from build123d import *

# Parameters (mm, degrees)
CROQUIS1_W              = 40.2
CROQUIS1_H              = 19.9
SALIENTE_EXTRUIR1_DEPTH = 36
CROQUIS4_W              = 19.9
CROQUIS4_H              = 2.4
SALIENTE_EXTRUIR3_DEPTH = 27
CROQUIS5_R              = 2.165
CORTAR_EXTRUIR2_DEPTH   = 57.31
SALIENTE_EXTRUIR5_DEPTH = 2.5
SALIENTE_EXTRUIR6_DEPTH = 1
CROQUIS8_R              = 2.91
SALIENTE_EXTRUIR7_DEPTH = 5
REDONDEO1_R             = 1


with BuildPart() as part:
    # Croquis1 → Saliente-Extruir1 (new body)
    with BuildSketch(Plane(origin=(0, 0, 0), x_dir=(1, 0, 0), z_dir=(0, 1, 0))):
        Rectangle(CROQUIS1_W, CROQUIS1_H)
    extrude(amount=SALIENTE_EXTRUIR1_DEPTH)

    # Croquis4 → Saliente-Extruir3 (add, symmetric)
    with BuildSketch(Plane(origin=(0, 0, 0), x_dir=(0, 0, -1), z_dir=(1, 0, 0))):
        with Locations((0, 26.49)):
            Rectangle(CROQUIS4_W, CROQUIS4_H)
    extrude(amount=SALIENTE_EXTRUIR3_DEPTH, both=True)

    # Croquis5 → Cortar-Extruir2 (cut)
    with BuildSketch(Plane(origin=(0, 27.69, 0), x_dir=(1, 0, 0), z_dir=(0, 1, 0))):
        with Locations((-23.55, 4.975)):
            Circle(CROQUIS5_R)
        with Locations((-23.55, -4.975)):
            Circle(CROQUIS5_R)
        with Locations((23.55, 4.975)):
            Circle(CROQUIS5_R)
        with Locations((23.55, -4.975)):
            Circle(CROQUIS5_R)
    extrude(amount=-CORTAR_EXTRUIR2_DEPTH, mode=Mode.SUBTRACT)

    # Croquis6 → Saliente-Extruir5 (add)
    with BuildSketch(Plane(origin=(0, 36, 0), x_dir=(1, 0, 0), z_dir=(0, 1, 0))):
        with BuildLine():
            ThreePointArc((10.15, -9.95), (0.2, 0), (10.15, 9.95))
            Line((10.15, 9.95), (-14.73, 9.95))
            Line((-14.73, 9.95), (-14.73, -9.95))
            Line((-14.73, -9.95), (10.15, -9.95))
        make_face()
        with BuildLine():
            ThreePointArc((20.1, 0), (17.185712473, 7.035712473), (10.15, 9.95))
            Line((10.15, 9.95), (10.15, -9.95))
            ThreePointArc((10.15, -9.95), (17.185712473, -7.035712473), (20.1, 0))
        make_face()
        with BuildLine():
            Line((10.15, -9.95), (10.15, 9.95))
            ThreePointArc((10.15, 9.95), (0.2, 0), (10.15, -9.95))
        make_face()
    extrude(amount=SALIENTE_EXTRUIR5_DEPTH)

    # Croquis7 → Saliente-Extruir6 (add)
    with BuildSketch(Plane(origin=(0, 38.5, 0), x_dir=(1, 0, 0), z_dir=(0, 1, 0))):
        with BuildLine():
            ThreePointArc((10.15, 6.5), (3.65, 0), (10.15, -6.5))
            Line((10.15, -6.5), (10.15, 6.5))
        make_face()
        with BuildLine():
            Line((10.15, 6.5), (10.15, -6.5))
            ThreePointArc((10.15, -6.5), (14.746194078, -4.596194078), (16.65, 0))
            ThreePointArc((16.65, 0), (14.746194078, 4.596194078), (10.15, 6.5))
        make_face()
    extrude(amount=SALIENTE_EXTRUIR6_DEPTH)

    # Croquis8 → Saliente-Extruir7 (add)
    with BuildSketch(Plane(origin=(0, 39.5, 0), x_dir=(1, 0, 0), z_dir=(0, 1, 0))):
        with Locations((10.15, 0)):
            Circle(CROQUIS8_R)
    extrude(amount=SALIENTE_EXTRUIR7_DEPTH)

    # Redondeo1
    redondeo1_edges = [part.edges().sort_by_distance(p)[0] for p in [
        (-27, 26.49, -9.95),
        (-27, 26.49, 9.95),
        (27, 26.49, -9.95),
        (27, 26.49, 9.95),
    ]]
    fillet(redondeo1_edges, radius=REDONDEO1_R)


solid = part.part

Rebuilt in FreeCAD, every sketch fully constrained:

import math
import FreeCAD as App
import Part
import Sketcher
Q = App.Units.Quantity


def edges_at(feature, points):
    """Names of the edges that pass closest to the given points."""
    edges = feature.Shape.Edges
    near = lambda p: min(range(len(edges)), key=lambda i: edges[i].distToShape(Part.Vertex(*p))[0])
    return sorted({f"Edge{near(p) + 1}" for p in points})

doc = App.newDocument("Part")
params = doc.addObject("Spreadsheet::Sheet", "Params")
for row, (alias, value) in enumerate([
    ("sketch1_width", "40.2 mm"),
    ("sketch1_height", "19.9 mm"),
    ("pad1_length", "36 mm"),
    ("sketch2_width", "2.4 mm"),
    ("sketch2_height", "19.9 mm"),
    ("pad2_length", "54 mm"),
    ("sketch3_diameter", "4.33 mm"),
    ("pocket1_length", "57.31 mm"),
    ("sketch4_radius", "9.95 mm"),
    ("sketch4_width", "24.88 mm"),
    ("pad3_length", "2.5 mm"),
    ("sketch5_radius", "6.5 mm"),
    ("pad4_length", "1 mm"),
    ("sketch6_diameter", "5.82 mm"),
    ("pad5_length", "5 mm"),
    ("fillet_radius", "1 mm"),
], start=1):
    params.set(f"A{row}", alias)
    params.set(f"B{row}", "=" + value)
    params.setAlias(f"B{row}", alias)

body = doc.addObject("PartDesign::Body", "Body")

sketch1 = body.newObject("Sketcher::SketchObject", "Sketch")
sketch1.AttachmentSupport = (doc.getObject("XZ_Plane"), [""])
sketch1.MapMode = "FlatFace"
sketch1.addGeometry(Part.LineSegment(App.Vector(-20.1, -9.95, 0), App.Vector(-20.1, 9.95, 0)), False)
sketch1.addGeometry(Part.LineSegment(App.Vector(-20.1, 9.95, 0), App.Vector(20.1, 9.95, 0)), False)
sketch1.addGeometry(Part.LineSegment(App.Vector(20.1, 9.95, 0), App.Vector(20.1, -9.95, 0)), False)
sketch1.addGeometry(Part.LineSegment(App.Vector(20.1, -9.95, 0), App.Vector(-20.1, -9.95, 0)), False)
sketch1.addConstraint(Sketcher.Constraint("Coincident", 0, 2, 1, 1))
sketch1.addConstraint(Sketcher.Constraint("Coincident", 1, 2, 2, 1))
sketch1.addConstraint(Sketcher.Constraint("Coincident", 2, 2, 3, 1))
sketch1.addConstraint(Sketcher.Constraint("Coincident", 3, 2, 0, 1))
sketch1.addConstraint(Sketcher.Constraint("Vertical", 0))
sketch1.addConstraint(Sketcher.Constraint("Horizontal", 1))
sketch1.addConstraint(Sketcher.Constraint("Vertical", 2))
sketch1.addConstraint(Sketcher.Constraint("Horizontal", 3))
sketch1.addConstraint(Sketcher.Constraint("Symmetric", 0, 2, 2, 2, -1, 1))
sketch1.addConstraint(Sketcher.Constraint("DistanceX", 1, 1, 1, 2, Q("40.2 mm")))
sketch1.addConstraint(Sketcher.Constraint("DistanceY", 0, 1, 0, 2, Q("19.9 mm")))
sketch1.setExpression("Constraints[9]", "Params.sketch1_width")
sketch1.setExpression("Constraints[10]", "Params.sketch1_height")
pad1 = body.newObject("PartDesign::Pad", "Pad")
pad1.Profile = sketch1
pad1.setExpression("Length", "Params.pad1_length")
pad1.Reversed = True

sketch2 = body.newObject("Sketcher::SketchObject", "Sketch001")
sketch2.AttachmentSupport = (doc.getObject("YZ_Plane"), [""])
sketch2.MapMode = "FlatFace"
sketch2.addGeometry(Part.LineSegment(App.Vector(27.69, 9.95, 0), App.Vector(25.29, 9.95, 0)), False)
sketch2.addGeometry(Part.LineSegment(App.Vector(25.29, 9.95, 0), App.Vector(25.29, -9.95, 0)), False)
sketch2.addGeometry(Part.LineSegment(App.Vector(25.29, -9.95, 0), App.Vector(27.69, -9.95, 0)), False)
sketch2.addGeometry(Part.LineSegment(App.Vector(27.69, -9.95, 0), App.Vector(27.69, 9.95, 0)), False)
sketch2.addConstraint(Sketcher.Constraint("Coincident", 0, 2, 1, 1))
sketch2.addConstraint(Sketcher.Constraint("Coincident", 1, 2, 2, 1))
sketch2.addConstraint(Sketcher.Constraint("Coincident", 2, 2, 3, 1))
sketch2.addConstraint(Sketcher.Constraint("Coincident", 3, 2, 0, 1))
sketch2.addConstraint(Sketcher.Constraint("Horizontal", 0))
sketch2.addConstraint(Sketcher.Constraint("Vertical", 1))
sketch2.addConstraint(Sketcher.Constraint("Horizontal", 2))
sketch2.addConstraint(Sketcher.Constraint("Vertical", 3))
sketch2.addConstraint(Sketcher.Constraint("DistanceX", 0, 2, 0, 1, Q("2.4 mm")))
sketch2.addConstraint(Sketcher.Constraint("DistanceY", 1, 2, 1, 1, Q("19.9 mm")))
sketch2.addConstraint(Sketcher.Constraint("DistanceX", -1, 1, 0, 2, Q("25.29 mm")))
sketch2.addConstraint(Sketcher.Constraint("DistanceY", -1, 1, 0, 2, Q("9.95 mm")))
sketch2.setExpression("Constraints[8]", "Params.sketch2_width")
sketch2.setExpression("Constraints[9]", "Params.sketch2_height")
pad2 = body.newObject("PartDesign::Pad", "Pad001")
pad2.Profile = sketch2
pad2.setExpression("Length", "Params.pad2_length")
pad2.Midplane = True

sketch3 = body.newObject("Sketcher::SketchObject", "Sketch002")
sketch3.AttachmentSupport = (doc.getObject("XZ_Plane"), [""])
sketch3.MapMode = "FlatFace"
sketch3.AttachmentOffset = App.Placement(App.Vector(0, 0, -27.69), App.Rotation())
sketch3.addGeometry(Part.Circle(App.Vector(-23.55, -4.975, 0), App.Vector(0, 0, 1), 2.165), False)
sketch3.addGeometry(Part.Circle(App.Vector(-23.55, 4.975, 0), App.Vector(0, 0, 1), 2.165), False)
sketch3.addGeometry(Part.Circle(App.Vector(23.55, -4.975, 0), App.Vector(0, 0, 1), 2.165), False)
sketch3.addGeometry(Part.Circle(App.Vector(23.55, 4.975, 0), App.Vector(0, 0, 1), 2.165), False)
sketch3.addConstraint(Sketcher.Constraint("Equal", 0, 1))
sketch3.addConstraint(Sketcher.Constraint("Equal", 1, 2))
sketch3.addConstraint(Sketcher.Constraint("Equal", 2, 3))
sketch3.addConstraint(Sketcher.Constraint("Symmetric", 1, 3, 2, 3, -1, 1))
sketch3.addConstraint(Sketcher.Constraint("Symmetric", 0, 3, 3, 3, -1, 1))
sketch3.addConstraint(Sketcher.Constraint("Symmetric", 0, 3, 2, 3, -2))
sketch3.addConstraint(Sketcher.Constraint("Diameter", 0, Q("4.33 mm")))
sketch3.addConstraint(Sketcher.Constraint("DistanceX", 0, 3, 2, 3, Q("47.1 mm")))
sketch3.addConstraint(Sketcher.Constraint("DistanceY", 0, 3, 1, 3, Q("9.95 mm")))
sketch3.setExpression("Constraints[6]", "Params.sketch3_diameter")
pocket1 = body.newObject("PartDesign::Pocket", "Pocket")
pocket1.Profile = sketch3
pocket1.setExpression("Length", "Params.pocket1_length")
pocket1.Reversed = True

sketch4 = body.newObject("Sketcher::SketchObject", "Sketch003")
sketch4.AttachmentSupport = (doc.getObject("XZ_Plane"), [""])
sketch4.MapMode = "FlatFace"
sketch4.AttachmentOffset = App.Placement(App.Vector(0, 0, -36), App.Rotation())
sketch4.addGeometry(Part.LineSegment(App.Vector(-14.73, -9.95, 0), App.Vector(-14.73, 9.95, 0)), False)
sketch4.addGeometry(Part.LineSegment(App.Vector(-14.73, 9.95, 0), App.Vector(10.15, 9.95, 0)), False)
sketch4.addGeometry(Part.ArcOfCircle(Part.Circle(App.Vector(10.15, 0, 0), App.Vector(0, 0, 1), 9.95), math.radians(0), math.radians(90)), False)
sketch4.addGeometry(Part.ArcOfCircle(Part.Circle(App.Vector(10.15, 0, 0), App.Vector(0, 0, 1), 9.95), math.radians(-90), math.radians(0)), False)
sketch4.addGeometry(Part.LineSegment(App.Vector(10.15, -9.95, 0), App.Vector(-14.73, -9.95, 0)), False)
sketch4.addConstraint(Sketcher.Constraint("Coincident", 0, 2, 1, 1))
sketch4.addConstraint(Sketcher.Constraint("Tangent", 1, 2, 2, 2))
sketch4.addConstraint(Sketcher.Constraint("Tangent", 2, 1, 3, 2))
sketch4.addConstraint(Sketcher.Constraint("Tangent", 3, 1, 4, 1))
sketch4.addConstraint(Sketcher.Constraint("Coincident", 4, 2, 0, 1))
sketch4.addConstraint(Sketcher.Constraint("Vertical", 0))
sketch4.addConstraint(Sketcher.Constraint("Horizontal", 1))
sketch4.addConstraint(Sketcher.Constraint("Horizontal", 4))
sketch4.addConstraint(Sketcher.Constraint("Equal", 2, 3))
sketch4.addConstraint(Sketcher.Constraint("PointOnObject", 2, 3, -1))
sketch4.addConstraint(Sketcher.Constraint("PointOnObject", 2, 1, -1))
sketch4.addConstraint(Sketcher.Constraint("Radius", 2, Q("9.95 mm")))
sketch4.addConstraint(Sketcher.Constraint("DistanceX", 1, 1, 1, 2, Q("24.88 mm")))
sketch4.addConstraint(Sketcher.Constraint("DistanceX", -1, 1, 2, 1, Q("20.1 mm")))
sketch4.setExpression("Constraints[11]", "Params.sketch4_radius")
sketch4.setExpression("Constraints[12]", "Params.sketch4_width")
pad3 = body.newObject("PartDesign::Pad", "Pad002")
pad3.Profile = sketch4
pad3.setExpression("Length", "Params.pad3_length")
pad3.Reversed = True

sketch5 = body.newObject("Sketcher::SketchObject", "Sketch004")
sketch5.AttachmentSupport = (doc.getObject("XZ_Plane"), [""])
sketch5.MapMode = "FlatFace"
sketch5.AttachmentOffset = App.Placement(App.Vector(0, 0, -38.5), App.Rotation())
sketch5.addGeometry(Part.ArcOfCircle(Part.Circle(App.Vector(10.15, 0, 0), App.Vector(0, 0, 1), 6.5), math.radians(90), math.radians(270)), False)
sketch5.addGeometry(Part.ArcOfCircle(Part.Circle(App.Vector(10.15, 0, 0), App.Vector(0, 0, 1), 6.5), math.radians(0), math.radians(90)), False)
sketch5.addGeometry(Part.ArcOfCircle(Part.Circle(App.Vector(10.15, 0, 0), App.Vector(0, 0, 1), 6.5), math.radians(-90), math.radians(0)), False)
sketch5.addConstraint(Sketcher.Constraint("Tangent", 0, 1, 1, 2))
sketch5.addConstraint(Sketcher.Constraint("Tangent", 1, 1, 2, 2))
sketch5.addConstraint(Sketcher.Constraint("Tangent", 2, 1, 0, 2))
sketch5.addConstraint(Sketcher.Constraint("Symmetric", 0, 1, 2, 1, -1))
sketch5.addConstraint(Sketcher.Constraint("PointOnObject", 1, 1, -1))
sketch5.addConstraint(Sketcher.Constraint("Vertical", 2, 3, 0, 1))
sketch5.addConstraint(Sketcher.Constraint("Radius", 0, Q("6.5 mm")))
sketch5.addConstraint(Sketcher.Constraint("DistanceX", -1, 1, 0, 3, Q("10.15 mm")))
sketch5.setExpression("Constraints[6]", "Params.sketch5_radius")
pad4 = body.newObject("PartDesign::Pad", "Pad003")
pad4.Profile = sketch5
pad4.setExpression("Length", "Params.pad4_length")
pad4.Reversed = True

sketch6 = body.newObject("Sketcher::SketchObject", "Sketch005")
sketch6.AttachmentSupport = (doc.getObject("XZ_Plane"), [""])
sketch6.MapMode = "FlatFace"
sketch6.AttachmentOffset = App.Placement(App.Vector(0, 0, -39.5), App.Rotation())
sketch6.addGeometry(Part.Circle(App.Vector(10.15, 0, 0), App.Vector(0, 0, 1), 2.91), False)
sketch6.addConstraint(Sketcher.Constraint("PointOnObject", 0, 3, -1))
sketch6.addConstraint(Sketcher.Constraint("Diameter", 0, Q("5.82 mm")))
sketch6.addConstraint(Sketcher.Constraint("DistanceX", -1, 1, 0, 3, Q("10.15 mm")))
sketch6.setExpression("Constraints[1]", "Params.sketch6_diameter")
pad5 = body.newObject("PartDesign::Pad", "Pad004")
pad5.Profile = sketch6
pad5.setExpression("Length", "Params.pad5_length")
pad5.Reversed = True
doc.recompute()

fillet = body.newObject("PartDesign::Fillet", "Fillet")
fillet.Base = (pad5, edges_at(pad5, [
    (-27, 26.49, -9.95),
    (-27, 26.49, 9.95),
    (27, 26.49, -9.95),
    (27, 26.49, 9.95),
]))
fillet.setExpression("Radius", "Params.fillet_radius")

doc.recompute()
